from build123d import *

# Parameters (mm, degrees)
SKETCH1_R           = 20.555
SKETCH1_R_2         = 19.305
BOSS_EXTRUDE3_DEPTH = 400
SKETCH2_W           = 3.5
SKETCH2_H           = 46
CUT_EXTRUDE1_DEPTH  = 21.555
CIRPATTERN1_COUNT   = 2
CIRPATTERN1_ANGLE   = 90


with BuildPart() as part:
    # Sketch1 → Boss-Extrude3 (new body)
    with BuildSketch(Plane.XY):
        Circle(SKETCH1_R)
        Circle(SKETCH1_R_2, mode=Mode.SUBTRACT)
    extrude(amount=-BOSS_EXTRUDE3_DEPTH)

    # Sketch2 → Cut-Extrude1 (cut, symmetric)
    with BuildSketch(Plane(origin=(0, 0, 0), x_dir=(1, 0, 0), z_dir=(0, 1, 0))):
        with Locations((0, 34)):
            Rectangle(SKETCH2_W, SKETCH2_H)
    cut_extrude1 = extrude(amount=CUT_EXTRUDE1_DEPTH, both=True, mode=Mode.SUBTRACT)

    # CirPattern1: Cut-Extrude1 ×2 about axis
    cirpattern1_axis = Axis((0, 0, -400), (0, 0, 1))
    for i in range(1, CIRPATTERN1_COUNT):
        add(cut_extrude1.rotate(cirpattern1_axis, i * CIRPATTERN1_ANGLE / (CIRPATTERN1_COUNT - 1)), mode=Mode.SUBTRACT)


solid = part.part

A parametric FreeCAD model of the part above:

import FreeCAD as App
import Part
import Sketcher
Q = App.Units.Quantity


def add_polygon(sketch, points):
    """Adds a closed chain of lines whose ends are joined by coincident constraints."""
    first, n = sketch.GeometryCount, len(points)
    for a, b in zip(points, points[1:] + points[:1]):
        sketch.addGeometry(Part.LineSegment(App.Vector(*a, 0), App.Vector(*b, 0)), False)
    for i in range(n):
        sketch.addConstraint(Sketcher.Constraint("Coincident", first + i, 2, first + (i + 1) % n, 1))

doc = App.newDocument("Part")
params = doc.addObject("Spreadsheet::Sheet", "Params")
for row, (alias, value) in enumerate([
    ("sketch1_diameter", "41.11 mm"),
    ("sketch1_diameter2", "38.61 mm"),
    ("pad1_length", "400 mm"),
    ("sketch2_height", "46 mm"),
    ("sketch2_width", "3.5 mm"),
    ("pocket1_length", "43.11 mm"),
], start=1):
    params.set(f"A{row}", alias)
    params.set(f"B{row}", "=" + value)
    params.setAlias(f"B{row}", alias)

body = doc.addObject("PartDesign::Body", "Body")

# Sketch on XY plane
sketch1 = doc.addObject("Sketcher::SketchObject", "Sketch")
body.addObject(sketch1)
sketch1.AttachmentSupport = (doc.XY_Plane, [""])
sketch1.MapMode = "FlatFace"
sketch1.addGeometry(Part.Circle(App.Vector(0, 0, 0), App.Vector(0, 0, 1), 20.555), False)
sketch1.addGeometry(Part.Circle(App.Vector(0, 0, 0), App.Vector(0, 0, 1), 19.305), False)
sketch1.addConstraint(Sketcher.Constraint("Coincident", 0, 3, -1, 1))
sketch1.addConstraint(Sketcher.Constraint("Coincident", 1, 3, -1, 1))
sketch1.addConstraint(Sketcher.Constraint("Diameter", 0, Q("41.11 mm")))
sketch1.addConstraint(Sketcher.Constraint("Diameter", 1, Q("38.61 mm")))
sketch1.setExpression("Constraints[2]", "Params.sketch1_diameter")
sketch1.setExpression("Constraints[3]", "Params.sketch1_diameter2")
pad1 = doc.addObject("PartDesign::Pad", "Pad")
body.addObject(pad1)
pad1.Profile = sketch1
pad1.setExpression("Length", "Params.pad1_length")
pad1.Reversed = True

# Sketch on XZ plane
sketch2 = doc.addObject("Sketcher::SketchObject", "Sketch001")
body.addObject(sketch2)
sketch2.AttachmentSupport = (doc.XZ_Plane, [""])
sketch2.MapMode = "FlatFace"
add_polygon(sketch2, [(-1.75, -57), (-1.75, -11), (1.75, -11), (1.75, -57)])  # lines 0-3
sketch2.addConstraint(Sketcher.Constraint("Vertical", 0))
sketch2.addConstraint(Sketcher.Constraint("Horizontal", 1))
sketch2.addConstraint(Sketcher.Constraint("Vertical", 2))
sketch2.addConstraint(Sketcher.Constraint("Horizontal", 3))
sketch2.addConstraint(Sketcher.Constraint("DistanceY", 0, 1, 0, 2, Q("46 mm")))
sketch2.addConstraint(Sketcher.Constraint("DistanceX", 1, 1, 1, 2, Q("3.5 mm")))
sketch2.addConstraint(Sketcher.Constraint("DistanceY", 0, 2, -1, 1, Q("11 mm")))
sketch2.addConstraint(Sketcher.Constraint("DistanceX", 0, 2, -1, 1, Q("1.75 mm")))
sketch2.setExpression("Constraints[8]", "Params.sketch2_height")
sketch2.setExpression("Constraints[9]", "Params.sketch2_width")
pocket1 = doc.addObject("PartDesign::Pocket", "Pocket")
body.addObject(pocket1)
pocket1.Profile = sketch2
pocket1.setExpression("Length", "Params.pocket1_length")
pocket1.Midplane = True
doc.recompute()

polarpattern = doc.addObject("PartDesign::PolarPattern", "PolarPattern")
body.addObject(polarpattern)
polarpattern.Originals = [pocket1]
polarpattern.Axis = (doc.Z_Axis, [""])
polarpattern.Angle = 90
polarpattern.Occurrences = 2
body.Tip = polarpattern

doc.recompute()
